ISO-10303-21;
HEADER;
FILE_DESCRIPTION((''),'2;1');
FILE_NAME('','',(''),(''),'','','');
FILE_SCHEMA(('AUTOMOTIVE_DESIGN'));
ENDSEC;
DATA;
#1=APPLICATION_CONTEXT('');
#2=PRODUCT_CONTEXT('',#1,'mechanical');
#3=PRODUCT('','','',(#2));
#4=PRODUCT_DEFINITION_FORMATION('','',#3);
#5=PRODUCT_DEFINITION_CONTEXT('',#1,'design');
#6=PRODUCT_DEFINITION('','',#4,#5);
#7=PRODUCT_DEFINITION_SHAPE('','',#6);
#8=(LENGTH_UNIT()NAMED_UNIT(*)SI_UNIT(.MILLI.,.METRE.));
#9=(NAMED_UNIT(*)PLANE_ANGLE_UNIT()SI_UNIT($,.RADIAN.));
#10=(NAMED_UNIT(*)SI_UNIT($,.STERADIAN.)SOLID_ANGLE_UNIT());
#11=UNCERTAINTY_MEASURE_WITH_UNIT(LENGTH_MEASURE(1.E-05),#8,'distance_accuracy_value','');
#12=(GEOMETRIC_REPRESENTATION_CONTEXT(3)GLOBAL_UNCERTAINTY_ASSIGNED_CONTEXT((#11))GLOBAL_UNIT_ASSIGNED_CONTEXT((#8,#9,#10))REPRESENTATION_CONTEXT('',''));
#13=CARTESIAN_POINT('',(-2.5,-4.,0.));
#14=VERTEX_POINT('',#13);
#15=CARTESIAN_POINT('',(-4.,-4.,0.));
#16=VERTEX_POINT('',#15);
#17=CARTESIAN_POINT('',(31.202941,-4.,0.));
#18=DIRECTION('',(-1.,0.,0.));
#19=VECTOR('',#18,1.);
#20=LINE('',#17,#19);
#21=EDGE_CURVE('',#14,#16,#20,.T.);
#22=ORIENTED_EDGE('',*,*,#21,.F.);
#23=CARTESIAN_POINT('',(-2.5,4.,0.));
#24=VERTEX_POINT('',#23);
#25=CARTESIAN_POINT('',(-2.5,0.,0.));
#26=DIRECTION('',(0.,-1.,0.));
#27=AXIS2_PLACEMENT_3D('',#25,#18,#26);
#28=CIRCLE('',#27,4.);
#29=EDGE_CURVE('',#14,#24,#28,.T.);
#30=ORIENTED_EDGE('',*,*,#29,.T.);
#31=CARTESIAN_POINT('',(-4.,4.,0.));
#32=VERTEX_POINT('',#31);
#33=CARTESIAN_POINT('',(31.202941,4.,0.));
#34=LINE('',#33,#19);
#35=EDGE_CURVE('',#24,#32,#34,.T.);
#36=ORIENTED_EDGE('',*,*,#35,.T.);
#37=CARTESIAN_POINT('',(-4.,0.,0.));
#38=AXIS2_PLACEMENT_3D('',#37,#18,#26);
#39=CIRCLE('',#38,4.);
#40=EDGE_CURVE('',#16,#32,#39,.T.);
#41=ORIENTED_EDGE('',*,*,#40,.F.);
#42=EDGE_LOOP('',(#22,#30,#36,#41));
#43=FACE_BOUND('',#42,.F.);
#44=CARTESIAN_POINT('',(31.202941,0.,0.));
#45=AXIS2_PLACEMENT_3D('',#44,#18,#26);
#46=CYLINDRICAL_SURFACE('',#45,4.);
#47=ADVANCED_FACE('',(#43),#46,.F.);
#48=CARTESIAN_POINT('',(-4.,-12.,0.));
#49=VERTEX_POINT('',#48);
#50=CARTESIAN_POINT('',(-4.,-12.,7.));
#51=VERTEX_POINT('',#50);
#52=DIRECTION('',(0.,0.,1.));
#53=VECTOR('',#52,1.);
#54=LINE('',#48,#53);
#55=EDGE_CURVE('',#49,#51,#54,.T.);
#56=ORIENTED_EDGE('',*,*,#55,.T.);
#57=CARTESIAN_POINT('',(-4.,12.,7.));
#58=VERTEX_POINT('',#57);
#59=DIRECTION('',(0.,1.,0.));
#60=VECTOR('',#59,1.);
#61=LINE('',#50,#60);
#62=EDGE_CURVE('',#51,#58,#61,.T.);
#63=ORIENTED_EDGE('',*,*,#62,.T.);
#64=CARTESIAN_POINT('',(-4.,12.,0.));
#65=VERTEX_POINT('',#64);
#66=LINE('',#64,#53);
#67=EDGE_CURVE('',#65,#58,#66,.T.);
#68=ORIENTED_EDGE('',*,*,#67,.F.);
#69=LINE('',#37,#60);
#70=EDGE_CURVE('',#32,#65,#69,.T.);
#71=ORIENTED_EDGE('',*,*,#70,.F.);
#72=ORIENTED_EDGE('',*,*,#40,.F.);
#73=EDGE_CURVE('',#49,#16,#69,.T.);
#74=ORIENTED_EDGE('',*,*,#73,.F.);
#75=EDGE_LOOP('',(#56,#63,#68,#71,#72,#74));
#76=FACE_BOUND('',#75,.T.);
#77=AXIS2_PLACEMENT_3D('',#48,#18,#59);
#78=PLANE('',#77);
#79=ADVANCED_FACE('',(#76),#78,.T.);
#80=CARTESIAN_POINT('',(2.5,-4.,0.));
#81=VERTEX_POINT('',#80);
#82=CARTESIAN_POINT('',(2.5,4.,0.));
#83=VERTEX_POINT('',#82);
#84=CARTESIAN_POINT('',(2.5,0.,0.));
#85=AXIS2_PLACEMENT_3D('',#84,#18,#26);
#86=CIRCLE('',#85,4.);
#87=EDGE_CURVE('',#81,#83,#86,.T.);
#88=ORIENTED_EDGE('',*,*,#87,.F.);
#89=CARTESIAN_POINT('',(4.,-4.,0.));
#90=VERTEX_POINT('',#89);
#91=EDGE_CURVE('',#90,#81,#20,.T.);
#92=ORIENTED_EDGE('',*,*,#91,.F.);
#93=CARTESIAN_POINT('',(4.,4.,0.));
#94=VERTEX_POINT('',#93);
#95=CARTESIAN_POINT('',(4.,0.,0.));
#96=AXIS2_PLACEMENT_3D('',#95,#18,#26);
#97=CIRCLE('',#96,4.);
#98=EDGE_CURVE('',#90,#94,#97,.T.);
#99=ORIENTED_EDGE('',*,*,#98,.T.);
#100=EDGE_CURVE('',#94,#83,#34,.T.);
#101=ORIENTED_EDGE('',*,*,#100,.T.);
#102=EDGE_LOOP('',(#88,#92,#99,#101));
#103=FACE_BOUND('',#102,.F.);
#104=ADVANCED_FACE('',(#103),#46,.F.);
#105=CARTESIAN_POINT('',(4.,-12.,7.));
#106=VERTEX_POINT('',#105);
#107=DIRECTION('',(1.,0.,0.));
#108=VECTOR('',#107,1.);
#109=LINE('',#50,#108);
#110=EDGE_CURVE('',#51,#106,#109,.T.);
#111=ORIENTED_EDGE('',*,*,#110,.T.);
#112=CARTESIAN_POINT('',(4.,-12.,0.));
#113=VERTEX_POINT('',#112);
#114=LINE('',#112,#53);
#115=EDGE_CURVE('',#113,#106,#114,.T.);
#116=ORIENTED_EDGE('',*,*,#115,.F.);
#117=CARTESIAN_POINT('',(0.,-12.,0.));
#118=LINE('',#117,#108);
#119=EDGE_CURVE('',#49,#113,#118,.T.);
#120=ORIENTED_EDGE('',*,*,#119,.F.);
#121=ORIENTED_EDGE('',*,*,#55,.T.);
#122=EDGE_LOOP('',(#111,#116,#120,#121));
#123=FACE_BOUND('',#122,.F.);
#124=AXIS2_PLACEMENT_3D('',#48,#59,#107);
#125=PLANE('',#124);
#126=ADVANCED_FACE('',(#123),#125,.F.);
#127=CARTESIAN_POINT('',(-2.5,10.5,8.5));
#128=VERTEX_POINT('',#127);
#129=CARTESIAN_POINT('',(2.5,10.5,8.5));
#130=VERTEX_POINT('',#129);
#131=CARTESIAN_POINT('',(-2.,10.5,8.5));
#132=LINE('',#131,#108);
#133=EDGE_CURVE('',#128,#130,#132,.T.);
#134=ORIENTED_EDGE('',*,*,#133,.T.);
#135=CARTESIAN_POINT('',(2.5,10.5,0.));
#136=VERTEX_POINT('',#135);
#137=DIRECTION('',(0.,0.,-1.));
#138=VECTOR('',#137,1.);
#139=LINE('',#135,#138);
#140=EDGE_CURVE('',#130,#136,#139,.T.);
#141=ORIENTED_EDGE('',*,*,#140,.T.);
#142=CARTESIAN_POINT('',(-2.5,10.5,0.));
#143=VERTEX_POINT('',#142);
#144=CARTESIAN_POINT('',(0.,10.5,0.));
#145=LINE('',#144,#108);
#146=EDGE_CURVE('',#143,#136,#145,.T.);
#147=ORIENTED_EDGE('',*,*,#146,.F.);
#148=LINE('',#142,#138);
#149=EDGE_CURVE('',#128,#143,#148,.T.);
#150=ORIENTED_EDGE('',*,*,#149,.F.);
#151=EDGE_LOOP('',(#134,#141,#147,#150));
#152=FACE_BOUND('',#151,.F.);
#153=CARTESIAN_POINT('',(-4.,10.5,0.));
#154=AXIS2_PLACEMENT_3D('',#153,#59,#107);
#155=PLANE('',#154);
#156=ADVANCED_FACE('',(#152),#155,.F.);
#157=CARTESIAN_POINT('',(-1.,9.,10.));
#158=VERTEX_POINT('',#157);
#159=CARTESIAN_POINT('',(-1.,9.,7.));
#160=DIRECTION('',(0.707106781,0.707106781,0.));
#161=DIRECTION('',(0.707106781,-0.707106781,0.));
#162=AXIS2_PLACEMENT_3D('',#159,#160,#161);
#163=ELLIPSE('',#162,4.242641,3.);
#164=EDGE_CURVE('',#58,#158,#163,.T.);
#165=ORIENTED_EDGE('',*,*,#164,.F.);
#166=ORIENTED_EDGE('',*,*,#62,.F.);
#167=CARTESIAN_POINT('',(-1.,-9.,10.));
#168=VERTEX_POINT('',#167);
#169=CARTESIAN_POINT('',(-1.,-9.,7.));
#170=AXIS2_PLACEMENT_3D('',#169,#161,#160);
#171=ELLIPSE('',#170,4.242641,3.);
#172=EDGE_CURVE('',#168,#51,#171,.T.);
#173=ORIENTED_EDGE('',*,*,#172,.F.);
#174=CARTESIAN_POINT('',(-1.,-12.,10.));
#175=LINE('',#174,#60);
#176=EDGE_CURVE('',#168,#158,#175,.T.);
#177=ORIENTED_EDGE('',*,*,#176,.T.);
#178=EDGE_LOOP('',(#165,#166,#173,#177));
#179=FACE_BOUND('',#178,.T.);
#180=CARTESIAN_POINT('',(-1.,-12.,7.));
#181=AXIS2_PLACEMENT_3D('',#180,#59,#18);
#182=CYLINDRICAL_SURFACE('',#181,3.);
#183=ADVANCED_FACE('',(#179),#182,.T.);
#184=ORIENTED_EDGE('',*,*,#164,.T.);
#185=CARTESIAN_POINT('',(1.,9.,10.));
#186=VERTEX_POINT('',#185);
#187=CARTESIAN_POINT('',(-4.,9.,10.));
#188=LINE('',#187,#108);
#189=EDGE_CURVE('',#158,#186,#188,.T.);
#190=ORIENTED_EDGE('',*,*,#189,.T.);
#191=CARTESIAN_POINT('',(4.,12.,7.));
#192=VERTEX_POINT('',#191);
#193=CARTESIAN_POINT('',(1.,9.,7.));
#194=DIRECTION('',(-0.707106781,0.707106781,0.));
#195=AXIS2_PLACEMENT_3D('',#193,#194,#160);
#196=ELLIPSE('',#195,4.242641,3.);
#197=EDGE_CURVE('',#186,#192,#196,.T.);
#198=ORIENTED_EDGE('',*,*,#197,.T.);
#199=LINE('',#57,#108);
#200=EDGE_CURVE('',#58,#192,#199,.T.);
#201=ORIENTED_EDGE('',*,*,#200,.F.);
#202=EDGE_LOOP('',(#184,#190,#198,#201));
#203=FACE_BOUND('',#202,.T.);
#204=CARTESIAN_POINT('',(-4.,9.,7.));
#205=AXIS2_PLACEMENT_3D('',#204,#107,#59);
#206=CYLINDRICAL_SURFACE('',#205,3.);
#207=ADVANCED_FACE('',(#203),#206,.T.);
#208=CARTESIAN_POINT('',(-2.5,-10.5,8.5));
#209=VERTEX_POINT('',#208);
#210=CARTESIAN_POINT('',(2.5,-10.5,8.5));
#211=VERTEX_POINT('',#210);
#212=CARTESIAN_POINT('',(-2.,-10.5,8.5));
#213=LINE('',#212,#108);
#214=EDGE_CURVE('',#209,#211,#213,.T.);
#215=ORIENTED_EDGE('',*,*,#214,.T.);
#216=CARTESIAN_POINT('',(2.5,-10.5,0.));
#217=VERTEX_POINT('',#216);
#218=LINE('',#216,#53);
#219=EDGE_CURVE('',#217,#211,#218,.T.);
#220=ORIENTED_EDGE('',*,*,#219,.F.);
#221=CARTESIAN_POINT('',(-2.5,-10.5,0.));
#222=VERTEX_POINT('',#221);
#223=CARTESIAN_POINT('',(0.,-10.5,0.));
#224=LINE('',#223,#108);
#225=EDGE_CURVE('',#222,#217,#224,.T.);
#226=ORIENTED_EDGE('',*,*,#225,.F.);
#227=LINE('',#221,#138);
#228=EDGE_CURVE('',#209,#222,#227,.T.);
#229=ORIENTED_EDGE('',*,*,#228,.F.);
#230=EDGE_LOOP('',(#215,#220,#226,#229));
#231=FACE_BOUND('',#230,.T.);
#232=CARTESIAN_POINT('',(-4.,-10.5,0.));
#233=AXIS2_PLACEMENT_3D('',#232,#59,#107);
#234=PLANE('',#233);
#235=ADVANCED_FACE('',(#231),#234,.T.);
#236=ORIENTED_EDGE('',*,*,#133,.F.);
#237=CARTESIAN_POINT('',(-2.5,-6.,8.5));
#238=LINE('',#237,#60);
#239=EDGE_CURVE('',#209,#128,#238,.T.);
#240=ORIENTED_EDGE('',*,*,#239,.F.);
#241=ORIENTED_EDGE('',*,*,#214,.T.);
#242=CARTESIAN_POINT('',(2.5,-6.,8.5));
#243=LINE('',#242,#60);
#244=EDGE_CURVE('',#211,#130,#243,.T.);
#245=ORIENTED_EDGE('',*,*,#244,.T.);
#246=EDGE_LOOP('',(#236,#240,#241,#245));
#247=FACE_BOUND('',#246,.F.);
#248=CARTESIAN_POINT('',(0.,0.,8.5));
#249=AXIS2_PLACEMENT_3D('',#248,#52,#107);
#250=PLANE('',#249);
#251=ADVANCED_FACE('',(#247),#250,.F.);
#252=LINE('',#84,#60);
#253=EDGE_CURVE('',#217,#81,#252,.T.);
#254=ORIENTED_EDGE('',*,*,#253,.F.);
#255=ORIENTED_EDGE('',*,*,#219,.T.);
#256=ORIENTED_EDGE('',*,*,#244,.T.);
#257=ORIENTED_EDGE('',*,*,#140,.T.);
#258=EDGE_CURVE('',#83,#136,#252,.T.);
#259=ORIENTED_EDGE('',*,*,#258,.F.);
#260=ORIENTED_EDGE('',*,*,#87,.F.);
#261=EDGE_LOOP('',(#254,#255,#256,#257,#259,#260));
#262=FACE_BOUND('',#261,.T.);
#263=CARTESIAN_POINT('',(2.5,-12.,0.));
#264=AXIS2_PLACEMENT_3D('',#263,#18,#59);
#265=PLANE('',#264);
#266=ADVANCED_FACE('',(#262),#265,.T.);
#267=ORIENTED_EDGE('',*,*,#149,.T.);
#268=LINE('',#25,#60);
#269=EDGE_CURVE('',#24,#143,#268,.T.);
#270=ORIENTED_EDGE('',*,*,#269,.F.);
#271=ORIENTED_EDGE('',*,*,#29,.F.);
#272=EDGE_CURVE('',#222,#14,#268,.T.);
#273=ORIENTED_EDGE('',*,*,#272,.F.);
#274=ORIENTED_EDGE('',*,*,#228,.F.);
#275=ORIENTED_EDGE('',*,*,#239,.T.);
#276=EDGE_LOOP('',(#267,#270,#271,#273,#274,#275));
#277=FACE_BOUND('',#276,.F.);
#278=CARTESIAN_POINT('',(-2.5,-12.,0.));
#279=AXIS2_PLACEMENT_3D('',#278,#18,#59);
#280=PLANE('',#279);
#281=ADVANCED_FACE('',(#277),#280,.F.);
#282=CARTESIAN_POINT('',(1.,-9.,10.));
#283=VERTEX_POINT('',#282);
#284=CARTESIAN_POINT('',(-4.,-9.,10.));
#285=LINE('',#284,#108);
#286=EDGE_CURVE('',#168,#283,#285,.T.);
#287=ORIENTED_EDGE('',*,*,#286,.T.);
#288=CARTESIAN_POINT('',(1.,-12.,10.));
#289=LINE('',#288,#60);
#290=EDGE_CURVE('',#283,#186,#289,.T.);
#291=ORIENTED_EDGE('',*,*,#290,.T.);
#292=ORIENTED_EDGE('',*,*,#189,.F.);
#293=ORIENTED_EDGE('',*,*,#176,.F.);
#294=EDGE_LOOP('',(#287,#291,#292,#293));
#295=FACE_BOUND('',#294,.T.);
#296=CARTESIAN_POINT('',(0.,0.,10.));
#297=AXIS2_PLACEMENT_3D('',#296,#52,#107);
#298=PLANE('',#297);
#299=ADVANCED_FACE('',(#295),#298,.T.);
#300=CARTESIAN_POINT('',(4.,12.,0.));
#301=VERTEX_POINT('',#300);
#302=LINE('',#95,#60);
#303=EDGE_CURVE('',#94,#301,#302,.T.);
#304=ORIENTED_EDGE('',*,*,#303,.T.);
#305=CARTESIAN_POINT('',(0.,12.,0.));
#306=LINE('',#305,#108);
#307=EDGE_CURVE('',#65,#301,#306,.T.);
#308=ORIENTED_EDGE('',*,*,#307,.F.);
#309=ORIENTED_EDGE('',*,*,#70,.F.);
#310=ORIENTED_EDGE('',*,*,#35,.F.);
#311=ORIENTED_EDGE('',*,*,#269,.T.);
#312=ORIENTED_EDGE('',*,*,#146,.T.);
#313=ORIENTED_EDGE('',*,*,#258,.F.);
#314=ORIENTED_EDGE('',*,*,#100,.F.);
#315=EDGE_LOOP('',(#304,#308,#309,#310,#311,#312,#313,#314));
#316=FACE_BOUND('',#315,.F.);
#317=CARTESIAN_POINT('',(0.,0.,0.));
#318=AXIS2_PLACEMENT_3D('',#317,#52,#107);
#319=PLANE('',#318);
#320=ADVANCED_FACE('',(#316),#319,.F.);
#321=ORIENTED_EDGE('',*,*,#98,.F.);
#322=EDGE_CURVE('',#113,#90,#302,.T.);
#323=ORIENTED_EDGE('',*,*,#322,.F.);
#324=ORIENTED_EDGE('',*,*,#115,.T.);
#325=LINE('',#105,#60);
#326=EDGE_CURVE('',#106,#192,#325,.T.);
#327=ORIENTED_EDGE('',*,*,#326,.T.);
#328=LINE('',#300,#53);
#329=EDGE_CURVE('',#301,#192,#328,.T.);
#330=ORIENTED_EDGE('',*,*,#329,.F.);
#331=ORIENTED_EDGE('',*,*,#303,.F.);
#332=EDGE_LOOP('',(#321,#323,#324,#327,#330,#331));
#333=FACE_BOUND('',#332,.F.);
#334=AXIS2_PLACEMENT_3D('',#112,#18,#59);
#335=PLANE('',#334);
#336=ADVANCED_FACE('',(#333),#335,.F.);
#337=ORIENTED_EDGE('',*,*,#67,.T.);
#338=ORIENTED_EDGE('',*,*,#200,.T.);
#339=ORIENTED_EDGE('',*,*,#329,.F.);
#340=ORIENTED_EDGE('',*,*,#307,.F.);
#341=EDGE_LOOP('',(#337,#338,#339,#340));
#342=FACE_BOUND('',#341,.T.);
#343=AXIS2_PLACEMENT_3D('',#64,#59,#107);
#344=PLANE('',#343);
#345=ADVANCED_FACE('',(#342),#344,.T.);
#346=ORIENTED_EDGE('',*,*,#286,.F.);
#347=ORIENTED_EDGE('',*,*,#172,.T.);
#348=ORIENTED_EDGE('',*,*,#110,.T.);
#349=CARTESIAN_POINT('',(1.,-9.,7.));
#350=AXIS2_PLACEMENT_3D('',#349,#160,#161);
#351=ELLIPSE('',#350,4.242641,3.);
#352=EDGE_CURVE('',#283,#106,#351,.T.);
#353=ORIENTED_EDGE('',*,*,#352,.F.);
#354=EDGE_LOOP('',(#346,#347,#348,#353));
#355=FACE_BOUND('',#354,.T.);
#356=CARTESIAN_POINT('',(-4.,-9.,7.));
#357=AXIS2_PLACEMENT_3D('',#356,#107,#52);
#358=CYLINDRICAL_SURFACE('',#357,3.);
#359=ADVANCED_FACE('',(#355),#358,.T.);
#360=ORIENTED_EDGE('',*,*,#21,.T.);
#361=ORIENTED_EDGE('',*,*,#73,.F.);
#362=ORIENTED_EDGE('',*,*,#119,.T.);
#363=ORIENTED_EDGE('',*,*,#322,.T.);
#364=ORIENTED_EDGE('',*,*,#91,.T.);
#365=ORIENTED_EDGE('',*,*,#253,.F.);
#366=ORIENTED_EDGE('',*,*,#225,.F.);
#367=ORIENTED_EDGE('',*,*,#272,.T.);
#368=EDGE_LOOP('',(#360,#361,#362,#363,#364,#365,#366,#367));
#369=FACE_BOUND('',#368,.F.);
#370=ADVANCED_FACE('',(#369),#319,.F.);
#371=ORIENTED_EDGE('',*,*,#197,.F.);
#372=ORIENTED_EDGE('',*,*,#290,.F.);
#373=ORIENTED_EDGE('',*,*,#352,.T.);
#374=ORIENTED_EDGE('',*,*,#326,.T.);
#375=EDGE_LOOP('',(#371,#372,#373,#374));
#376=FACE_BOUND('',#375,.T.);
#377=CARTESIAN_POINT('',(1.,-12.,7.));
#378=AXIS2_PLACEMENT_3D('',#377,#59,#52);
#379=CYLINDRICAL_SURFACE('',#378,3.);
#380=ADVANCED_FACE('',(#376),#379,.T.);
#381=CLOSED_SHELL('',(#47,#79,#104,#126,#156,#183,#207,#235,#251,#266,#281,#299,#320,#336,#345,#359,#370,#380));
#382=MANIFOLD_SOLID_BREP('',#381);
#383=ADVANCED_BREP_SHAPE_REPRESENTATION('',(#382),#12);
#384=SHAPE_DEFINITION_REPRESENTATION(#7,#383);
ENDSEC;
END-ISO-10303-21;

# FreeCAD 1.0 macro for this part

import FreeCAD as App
import Part
import Sketcher

V = App.Vector


def edges_at(feature, points):
    """Names of the edges that pass closest to the given points."""
    edges = feature.Shape.Edges
    near = lambda p: min(range(len(edges)), key=lambda i: edges[i].distToShape(Part.Vertex(*p))[0])
    return sorted({f"Edge{near(p) + 1}" for p in points})


def faces_at(feature, points):
    """Names of the faces that lie closest to the given points."""
    faces = feature.Shape.Faces
    near = lambda p: min(range(len(faces)), key=lambda i: faces[i].distToShape(Part.Vertex(*p))[0])
    return sorted({f"Face{near(p) + 1}" for p in points})


def add_polygon(sketch, points):
    """Adds a closed chain of lines whose ends are joined by coincident constraints."""
    first, n = sketch.GeometryCount, len(points)
    for a, b in zip(points, points[1:] + points[:1]):
        sketch.addGeometry(Part.LineSegment(App.Vector(*a, 0), App.Vector(*b, 0)), False)
    for i in range(n):
        sketch.addConstraint(Sketcher.Constraint("Coincident", first + i, 2, first + (i + 1) % n, 1))

doc = App.newDocument("Part")
body = doc.addObject("PartDesign::Body", "Body")

sketch1 = doc.addObject("Sketcher::SketchObject", "Sketch")
body.addObject(sketch1)
sketch1.AttachmentSupport = (doc.XY_Plane, [""])
sketch1.MapMode = "FlatFace"
add_polygon(sketch1, [(-4, 12), (-4, -12), (4, -12), (4, 12)])
sketch1.addConstraint([
    Sketcher.Constraint("Vertical", 0),
    Sketcher.Constraint("Horizontal", 1),
    Sketcher.Constraint("Vertical", 2),
    Sketcher.Constraint("Horizontal", 3),
    Sketcher.Constraint("Symmetric", 0, 2, 2, 2, -1, 1),
    Sketcher.Constraint("DistanceX", 1, 1, 1, 2, 8.0),
    Sketcher.Constraint("DistanceY", 0, 2, 0, 1, 24.0),
])
pad1 = doc.addObject("PartDesign::Pad", "Pad")
body.addObject(pad1)
pad1.Profile = sketch1
pad1.Length = 10
doc.recompute()

thickness = doc.addObject("PartDesign::Thickness", "Thickness")
body.addObject(thickness)
thickness.Base = (pad1, faces_at(pad1, [(0, 0, 0)]))
thickness.Value = 1.5
thickness.Reversed = True
thickness.Join = "Arc"

sketch2 = doc.addObject("Sketcher::SketchObject", "Sketch001")
body.addObject(sketch2)
sketch2.AttachmentSupport = (doc.YZ_Plane, [""])
sketch2.MapMode = "FlatFace"
sketch2.AttachmentOffset = App.Placement(V(0, 0, 4), App.Rotation())
sketch2.addGeometry(Part.Circle(V(0, 0, 0), V(0, 0, 1), 4), False)
sketch2.addConstraint([
    Sketcher.Constraint("Coincident", 0, 3, -1, 1),
    Sketcher.Constraint("Diameter", 0, 8.0),
])
doc.recompute()
hole = doc.addObject("PartDesign::Hole", "Hole")
body.addObject(hole)
hole.Profile = sketch2
hole.ThreadType = "None"
hole.Diameter = 8
hole.DepthType = "ThroughAll"
doc.recompute()

fillet = doc.addObject("PartDesign::Fillet", "Fillet")
body.addObject(fillet)
fillet.Base = (hole, edges_at(hole, [
    (0, -12, 10),
    (4, 0, 10),
    (0, 12, 10),
    (-4, 0, 10),
]))
fillet.Radius = 3

doc.recompute()
